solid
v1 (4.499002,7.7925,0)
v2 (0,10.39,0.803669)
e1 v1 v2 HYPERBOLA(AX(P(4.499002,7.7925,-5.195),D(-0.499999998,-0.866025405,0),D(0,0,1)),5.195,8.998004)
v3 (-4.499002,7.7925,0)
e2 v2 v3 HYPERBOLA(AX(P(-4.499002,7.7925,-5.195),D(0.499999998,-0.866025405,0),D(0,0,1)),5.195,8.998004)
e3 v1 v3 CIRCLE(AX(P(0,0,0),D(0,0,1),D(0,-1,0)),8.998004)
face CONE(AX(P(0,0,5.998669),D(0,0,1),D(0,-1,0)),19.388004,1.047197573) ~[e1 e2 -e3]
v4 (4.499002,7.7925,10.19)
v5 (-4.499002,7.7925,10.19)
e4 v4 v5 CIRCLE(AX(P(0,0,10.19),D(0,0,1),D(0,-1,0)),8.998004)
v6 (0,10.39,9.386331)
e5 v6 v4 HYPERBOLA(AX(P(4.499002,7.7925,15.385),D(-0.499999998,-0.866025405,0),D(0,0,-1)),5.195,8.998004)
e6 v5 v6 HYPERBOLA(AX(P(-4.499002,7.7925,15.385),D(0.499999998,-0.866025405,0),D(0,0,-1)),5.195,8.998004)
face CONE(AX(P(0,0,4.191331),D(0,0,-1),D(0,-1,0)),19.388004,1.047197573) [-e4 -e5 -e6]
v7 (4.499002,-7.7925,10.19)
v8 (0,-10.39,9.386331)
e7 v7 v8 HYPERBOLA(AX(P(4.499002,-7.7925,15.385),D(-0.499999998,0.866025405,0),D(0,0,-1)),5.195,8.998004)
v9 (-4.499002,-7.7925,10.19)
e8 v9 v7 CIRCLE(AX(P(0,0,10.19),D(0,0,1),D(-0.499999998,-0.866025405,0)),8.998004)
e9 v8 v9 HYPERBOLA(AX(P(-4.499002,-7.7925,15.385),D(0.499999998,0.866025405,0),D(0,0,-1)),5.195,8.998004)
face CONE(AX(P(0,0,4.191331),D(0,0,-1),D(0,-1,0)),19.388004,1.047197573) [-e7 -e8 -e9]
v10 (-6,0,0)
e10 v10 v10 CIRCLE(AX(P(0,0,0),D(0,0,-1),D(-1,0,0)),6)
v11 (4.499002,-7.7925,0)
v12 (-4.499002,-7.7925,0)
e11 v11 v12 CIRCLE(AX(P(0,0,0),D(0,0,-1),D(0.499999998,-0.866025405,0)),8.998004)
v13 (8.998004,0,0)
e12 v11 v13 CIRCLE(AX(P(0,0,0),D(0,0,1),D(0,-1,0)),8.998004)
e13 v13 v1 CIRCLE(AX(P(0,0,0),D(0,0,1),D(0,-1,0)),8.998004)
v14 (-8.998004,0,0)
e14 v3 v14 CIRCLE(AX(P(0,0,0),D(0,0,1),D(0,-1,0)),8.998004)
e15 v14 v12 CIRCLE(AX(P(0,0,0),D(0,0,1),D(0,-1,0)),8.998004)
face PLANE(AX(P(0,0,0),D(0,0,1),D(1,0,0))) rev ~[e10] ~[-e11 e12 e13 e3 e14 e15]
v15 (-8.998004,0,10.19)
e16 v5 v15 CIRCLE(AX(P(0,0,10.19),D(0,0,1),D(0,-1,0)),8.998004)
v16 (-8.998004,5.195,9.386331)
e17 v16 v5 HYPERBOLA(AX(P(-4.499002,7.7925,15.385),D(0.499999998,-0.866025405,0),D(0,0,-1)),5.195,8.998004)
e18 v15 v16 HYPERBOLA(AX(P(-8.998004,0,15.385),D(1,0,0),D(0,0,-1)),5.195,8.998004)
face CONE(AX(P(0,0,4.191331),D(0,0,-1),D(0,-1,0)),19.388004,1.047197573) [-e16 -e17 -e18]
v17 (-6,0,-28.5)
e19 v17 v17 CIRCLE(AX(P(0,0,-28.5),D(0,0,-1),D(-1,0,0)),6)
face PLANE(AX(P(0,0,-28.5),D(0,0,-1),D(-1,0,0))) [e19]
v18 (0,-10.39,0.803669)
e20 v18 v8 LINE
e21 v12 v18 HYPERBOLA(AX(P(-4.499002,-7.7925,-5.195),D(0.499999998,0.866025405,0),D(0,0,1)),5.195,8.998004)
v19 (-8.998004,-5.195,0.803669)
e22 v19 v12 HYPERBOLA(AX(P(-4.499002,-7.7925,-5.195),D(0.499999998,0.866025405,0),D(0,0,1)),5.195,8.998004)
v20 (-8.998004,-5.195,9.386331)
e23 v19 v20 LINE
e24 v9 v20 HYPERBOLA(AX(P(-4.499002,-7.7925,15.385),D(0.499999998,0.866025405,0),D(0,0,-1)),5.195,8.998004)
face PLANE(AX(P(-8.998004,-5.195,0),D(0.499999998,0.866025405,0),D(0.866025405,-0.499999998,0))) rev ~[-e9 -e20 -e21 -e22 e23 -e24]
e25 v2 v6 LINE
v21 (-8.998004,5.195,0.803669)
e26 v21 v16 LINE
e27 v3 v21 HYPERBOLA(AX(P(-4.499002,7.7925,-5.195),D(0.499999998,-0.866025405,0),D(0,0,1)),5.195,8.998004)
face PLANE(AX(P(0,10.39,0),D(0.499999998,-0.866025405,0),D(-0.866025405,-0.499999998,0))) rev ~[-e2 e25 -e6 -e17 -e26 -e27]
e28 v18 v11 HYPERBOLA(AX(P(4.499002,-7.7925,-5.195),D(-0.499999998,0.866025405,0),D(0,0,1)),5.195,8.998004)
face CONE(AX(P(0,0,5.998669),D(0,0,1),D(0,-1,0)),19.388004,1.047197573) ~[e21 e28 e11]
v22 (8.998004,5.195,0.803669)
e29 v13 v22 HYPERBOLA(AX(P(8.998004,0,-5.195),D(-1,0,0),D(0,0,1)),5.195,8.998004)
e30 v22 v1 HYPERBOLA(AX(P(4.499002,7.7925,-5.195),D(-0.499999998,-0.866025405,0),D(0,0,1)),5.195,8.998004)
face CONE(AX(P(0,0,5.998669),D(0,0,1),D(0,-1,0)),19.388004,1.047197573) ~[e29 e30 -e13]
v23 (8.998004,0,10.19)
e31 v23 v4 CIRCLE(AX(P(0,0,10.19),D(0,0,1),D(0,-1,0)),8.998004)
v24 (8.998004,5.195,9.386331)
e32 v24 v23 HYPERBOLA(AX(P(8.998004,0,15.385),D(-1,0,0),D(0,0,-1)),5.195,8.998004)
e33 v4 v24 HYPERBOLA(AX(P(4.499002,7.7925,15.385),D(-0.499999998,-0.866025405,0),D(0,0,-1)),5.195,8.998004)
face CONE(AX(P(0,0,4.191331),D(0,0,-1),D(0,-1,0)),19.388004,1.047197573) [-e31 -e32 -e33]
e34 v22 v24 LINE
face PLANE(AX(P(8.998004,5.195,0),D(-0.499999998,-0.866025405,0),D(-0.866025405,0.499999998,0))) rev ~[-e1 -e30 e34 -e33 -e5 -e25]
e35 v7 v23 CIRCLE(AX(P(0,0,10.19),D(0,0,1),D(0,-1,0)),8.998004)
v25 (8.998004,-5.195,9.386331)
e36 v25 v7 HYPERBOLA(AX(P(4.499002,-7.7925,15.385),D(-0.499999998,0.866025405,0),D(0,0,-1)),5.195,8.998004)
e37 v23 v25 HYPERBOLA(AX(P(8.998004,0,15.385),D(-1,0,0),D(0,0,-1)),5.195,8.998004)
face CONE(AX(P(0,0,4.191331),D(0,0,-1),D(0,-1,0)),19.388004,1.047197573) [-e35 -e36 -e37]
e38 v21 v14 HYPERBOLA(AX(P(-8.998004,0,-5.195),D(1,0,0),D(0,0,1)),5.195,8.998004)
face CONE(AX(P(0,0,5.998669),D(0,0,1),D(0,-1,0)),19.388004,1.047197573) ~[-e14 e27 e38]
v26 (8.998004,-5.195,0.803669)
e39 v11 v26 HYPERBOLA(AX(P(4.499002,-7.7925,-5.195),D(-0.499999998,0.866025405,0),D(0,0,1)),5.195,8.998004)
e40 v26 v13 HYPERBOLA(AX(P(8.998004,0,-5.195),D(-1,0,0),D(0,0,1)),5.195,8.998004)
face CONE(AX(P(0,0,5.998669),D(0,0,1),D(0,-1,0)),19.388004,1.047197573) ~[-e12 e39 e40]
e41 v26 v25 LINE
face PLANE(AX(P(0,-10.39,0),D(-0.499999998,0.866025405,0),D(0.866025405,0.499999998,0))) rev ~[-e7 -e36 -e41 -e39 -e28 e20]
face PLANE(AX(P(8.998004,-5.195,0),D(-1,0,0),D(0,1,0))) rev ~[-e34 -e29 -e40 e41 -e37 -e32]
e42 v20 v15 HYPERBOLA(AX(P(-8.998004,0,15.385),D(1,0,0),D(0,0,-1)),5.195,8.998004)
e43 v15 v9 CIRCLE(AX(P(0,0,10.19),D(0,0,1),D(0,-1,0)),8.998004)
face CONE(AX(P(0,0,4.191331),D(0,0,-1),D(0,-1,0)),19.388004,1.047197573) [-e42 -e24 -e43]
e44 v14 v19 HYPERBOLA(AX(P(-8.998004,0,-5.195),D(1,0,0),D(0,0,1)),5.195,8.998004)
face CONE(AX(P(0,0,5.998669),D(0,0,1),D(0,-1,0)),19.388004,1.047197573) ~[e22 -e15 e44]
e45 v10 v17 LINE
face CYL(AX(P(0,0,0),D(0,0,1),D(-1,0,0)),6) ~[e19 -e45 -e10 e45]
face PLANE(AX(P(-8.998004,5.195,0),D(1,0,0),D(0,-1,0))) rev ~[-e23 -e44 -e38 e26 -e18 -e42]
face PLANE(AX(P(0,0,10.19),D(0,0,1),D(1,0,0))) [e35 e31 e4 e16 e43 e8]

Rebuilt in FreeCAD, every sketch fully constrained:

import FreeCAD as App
import Part
import Sketcher

V = App.Vector
Q = App.Units.Quantity

doc = App.newDocument("Part")
body = doc.addObject("PartDesign::Body", "Body")

# Sketch on XY plane
sketch1 = body.newObject("Sketcher::SketchObject", "Sketch")
sketch1.AttachmentSupport = (doc.getObject("XY_Plane"), [""])
sketch1.MapMode = "FlatFace"
sketch1.addGeometry(Part.LineSegment(V(0, 10, 0), V(-9, 5, 0)), False)
sketch1.addGeometry(Part.LineSegment(V(-9, 5, 0), V(-9, -5, 0)), False)
sketch1.addGeometry(Part.LineSegment(V(-9, -5, 0), V(0, -10, 0)), False)
sketch1.addGeometry(Part.LineSegment(V(0, -10, 0), V(9, -5, 0)), False)
sketch1.addGeometry(Part.LineSegment(V(9, -5, 0), V(9, 5, 0)), False)
sketch1.addGeometry(Part.LineSegment(V(9, 5, 0), V(0, 10, 0)), False)
sketch1.addConstraint(Sketcher.Constraint("Coincident", 0, 2, 1, 1))
sketch1.addConstraint(Sketcher.Constraint("Coincident", 1, 2, 2, 1))
sketch1.addConstraint(Sketcher.Constraint("Coincident", 2, 2, 3, 1))
sketch1.addConstraint(Sketcher.Constraint("Coincident", 3, 2, 4, 1))
sketch1.addConstraint(Sketcher.Constraint("Coincident", 4, 2, 5, 1))
sketch1.addConstraint(Sketcher.Constraint("Coincident", 5, 2, 0, 1))
sketch1.addConstraint(Sketcher.Constraint("Vertical", 1))
sketch1.addConstraint(Sketcher.Constraint("Vertical", 4))
sketch1.addConstraint(Sketcher.Constraint("Symmetric", 0, 2, 3, 2, -1, 1))
sketch1.addConstraint(Sketcher.Constraint("Symmetric", 2, 2, 5, 2, -1, 1))
sketch1.addConstraint(Sketcher.Constraint("PointOnObject", 2, 2, -2))
sketch1.addConstraint(Sketcher.Constraint("Parallel", 2, 5))
sketch1.addConstraint(Sketcher.Constraint("Horizontal", 1, 2, 3, 2))
sketch1.addConstraint(Sketcher.Constraint("Angle", 0, Q("-150 deg")))
sketch1.addConstraint(Sketcher.Constraint("DistanceY", 1, 2, 1, 1, 10.39))
sketch1.addConstraint(Sketcher.Constraint("Distance", 0, 10.39))
pad1 = body.newObject("PartDesign::Pad", "Pad")
pad1.Profile = sketch1
pad1.Length = 10.19

# Sketch on XY plane
sketch2 = body.newObject("Sketcher::SketchObject", "Sketch001")
sketch2.AttachmentSupport = (doc.getObject("XY_Plane"), [""])
sketch2.MapMode = "FlatFace"
sketch2.addGeometry(Part.Circle(V(0, 0, 0), V(0, 0, 1), 6), False)
sketch2.addConstraint(Sketcher.Constraint("Coincident", 0, 3, -1, 1))
sketch2.addConstraint(Sketcher.Constraint("Diameter", 0, 12.0))
pad2 = body.newObject("PartDesign::Pad", "Pad001")
pad2.Profile = sketch2
pad2.Length = 28.5
pad2.Reversed = True

# Sketch on YZ plane
sketch3 = body.newObject("Sketcher::SketchObject", "Sketch002")
sketch3.AttachmentSupport = (doc.getObject("YZ_Plane"), [""])
sketch3.MapMode = "FlatFace"
sketch3.addGeometry(Part.LineSegment(V(-18, 5, 0), V(-9, 10, 0)), False)
sketch3.addGeometry(Part.LineSegment(V(-9, 10, 0), V(-19, 10, 0)), False)
sketch3.addGeometry(Part.LineSegment(V(-19, 10, 0), V(-19, 0, 0)), False)
sketch3.addGeometry(Part.LineSegment(V(-19, 0, 0), V(-9, 0, 0)), False)
sketch3.addGeometry(Part.LineSegment(V(-9, 0, 0), V(-18, 5, 0)), False)
sketch3.addConstraint(Sketcher.Constraint("Coincident", 0, 2, 1, 1))
sketch3.addConstraint(Sketcher.Constraint("Coincident", 1, 2, 2, 1))
sketch3.addConstraint(Sketcher.Constraint("Coincident", 2, 2, 3, 1))
sketch3.addConstraint(Sketcher.Constraint("Coincident", 3, 2, 4, 1))
sketch3.addConstraint(Sketcher.Constraint("Coincident", 4, 2, 0, 1))
sketch3.addConstraint(Sketcher.Constraint("Horizontal", 1))
sketch3.addConstraint(Sketcher.Constraint("Vertical", 2))
sketch3.addConstraint(Sketcher.Constraint("Horizontal", 3))
sketch3.addConstraint(Sketcher.Constraint("PointOnObject", 2, 2, -1))
sketch3.addConstraint(Sketcher.Constraint("Vertical", 0, 2, 3, 2))
sketch3.addConstraint(Sketcher.Constraint("Equal", 0, 4))
sketch3.addConstraint(Sketcher.Constraint("Angle", 0, Q("29.999999 deg")))
sketch3.addConstraint(Sketcher.Constraint("DistanceX", 1, 2, 1, 1, 10.39))
sketch3.addConstraint(Sketcher.Constraint("DistanceY", 2, 2, 2, 1, 10.19))
sketch3.addConstraint(Sketcher.Constraint("DistanceX", 0, 2, -1, 1, 8.998004))
groove = body.newObject("PartDesign::Groove", "Groove")
groove.Profile = sketch3
groove.ReferenceAxis = (sketch3, ["V_Axis"])
groove.Angle = 360

doc.recompute()
